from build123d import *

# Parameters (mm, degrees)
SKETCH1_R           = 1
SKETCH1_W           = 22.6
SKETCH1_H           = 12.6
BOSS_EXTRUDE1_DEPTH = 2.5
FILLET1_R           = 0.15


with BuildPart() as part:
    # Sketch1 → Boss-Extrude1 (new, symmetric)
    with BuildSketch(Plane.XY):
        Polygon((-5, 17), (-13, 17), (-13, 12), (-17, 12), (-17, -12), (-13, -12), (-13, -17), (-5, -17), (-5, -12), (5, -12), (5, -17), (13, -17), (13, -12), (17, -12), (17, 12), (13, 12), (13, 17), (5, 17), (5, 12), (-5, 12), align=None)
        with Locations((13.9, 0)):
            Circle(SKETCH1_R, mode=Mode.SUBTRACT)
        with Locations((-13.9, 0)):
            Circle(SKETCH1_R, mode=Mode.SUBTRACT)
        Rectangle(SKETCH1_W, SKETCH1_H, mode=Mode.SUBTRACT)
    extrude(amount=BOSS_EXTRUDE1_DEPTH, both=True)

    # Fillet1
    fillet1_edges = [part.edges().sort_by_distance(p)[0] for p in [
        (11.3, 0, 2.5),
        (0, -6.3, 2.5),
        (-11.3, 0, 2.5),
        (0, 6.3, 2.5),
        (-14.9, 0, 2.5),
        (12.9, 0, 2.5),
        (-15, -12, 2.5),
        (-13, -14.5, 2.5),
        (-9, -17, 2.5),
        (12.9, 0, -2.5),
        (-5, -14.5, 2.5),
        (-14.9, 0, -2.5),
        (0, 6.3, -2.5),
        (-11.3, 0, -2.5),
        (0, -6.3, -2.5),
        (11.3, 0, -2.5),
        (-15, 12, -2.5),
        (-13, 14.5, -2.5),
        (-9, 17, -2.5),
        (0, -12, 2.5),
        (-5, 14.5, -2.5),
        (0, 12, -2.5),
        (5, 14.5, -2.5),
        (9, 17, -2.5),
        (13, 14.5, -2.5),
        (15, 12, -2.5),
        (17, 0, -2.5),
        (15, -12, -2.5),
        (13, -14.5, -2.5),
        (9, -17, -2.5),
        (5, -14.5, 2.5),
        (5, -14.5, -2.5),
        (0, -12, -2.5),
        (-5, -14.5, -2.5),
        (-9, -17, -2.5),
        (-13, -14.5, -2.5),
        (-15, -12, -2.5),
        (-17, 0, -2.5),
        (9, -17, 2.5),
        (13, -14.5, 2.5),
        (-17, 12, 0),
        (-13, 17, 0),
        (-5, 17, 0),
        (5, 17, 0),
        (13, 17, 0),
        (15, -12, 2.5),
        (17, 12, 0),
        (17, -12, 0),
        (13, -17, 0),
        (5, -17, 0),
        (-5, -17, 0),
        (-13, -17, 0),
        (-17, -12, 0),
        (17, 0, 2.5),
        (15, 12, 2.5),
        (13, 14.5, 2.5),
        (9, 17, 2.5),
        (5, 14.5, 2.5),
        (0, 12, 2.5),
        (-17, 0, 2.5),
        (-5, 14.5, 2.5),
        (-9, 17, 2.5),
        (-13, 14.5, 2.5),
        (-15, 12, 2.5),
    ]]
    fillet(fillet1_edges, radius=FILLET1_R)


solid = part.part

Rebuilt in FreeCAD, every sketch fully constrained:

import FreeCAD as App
import Part
import Sketcher


def edges_at(feature, points):
    """Names of the edges that pass closest to the given points."""
    edges = feature.Shape.Edges
    near = lambda p: min(range(len(edges)), key=lambda i: edges[i].distToShape(Part.Vertex(*p))[0])
    return sorted({f"Edge{near(p) + 1}" for p in points})

doc = App.newDocument("Part")
params = doc.addObject("Spreadsheet::Sheet", "Params")
for row, (alias, value) in enumerate([
    ("sketch1_diameter", "2 mm"),
    ("sketch1_width", "8 mm"),
    ("sketch1_width2", "4 mm"),
    ("sketch1_width3", "10 mm"),
    ("sketch1_height", "5 mm"),
    ("pad1_length", "5 mm"),
    ("fillet_radius", "0.15 mm"),
], start=1):
    params.set(f"A{row}", alias)
    params.set(f"B{row}", "=" + value)
    params.setAlias(f"B{row}", alias)

body = doc.addObject("PartDesign::Body", "Body")

# Sketch on XY plane
sketch1 = body.newObject("Sketcher::SketchObject", "Sketch")
sketch1.AttachmentSupport = (doc.getObject("XY_Plane"), [""])
sketch1.MapMode = "FlatFace"
sketch1.addGeometry([
    Part.LineSegment(App.Vector(-5, 17, 0), App.Vector(-13, 17, 0)),  # 0
    Part.LineSegment(App.Vector(-13, 17, 0), App.Vector(-13, 12, 0)),  # 1
    Part.LineSegment(App.Vector(-13, 12, 0), App.Vector(-17, 12, 0)),  # 2
    Part.LineSegment(App.Vector(-17, 12, 0), App.Vector(-17, -12, 0)),  # 3
    Part.LineSegment(App.Vector(-17, -12, 0), App.Vector(-13, -12, 0)),  # 4
    Part.LineSegment(App.Vector(-13, -12, 0), App.Vector(-13, -17, 0)),  # 5
    Part.LineSegment(App.Vector(-13, -17, 0), App.Vector(-5, -17, 0)),  # 6
    Part.LineSegment(App.Vector(-5, -17, 0), App.Vector(-5, -12, 0)),  # 7
    Part.LineSegment(App.Vector(-5, -12, 0), App.Vector(5, -12, 0)),  # 8
    Part.LineSegment(App.Vector(5, -12, 0), App.Vector(5, -17, 0)),  # 9
    Part.LineSegment(App.Vector(5, -17, 0), App.Vector(13, -17, 0)),  # 10
    Part.LineSegment(App.Vector(13, -17, 0), App.Vector(13, -12, 0)),  # 11
    Part.LineSegment(App.Vector(13, -12, 0), App.Vector(17, -12, 0)),  # 12
    Part.LineSegment(App.Vector(17, -12, 0), App.Vector(17, 12, 0)),  # 13
    Part.LineSegment(App.Vector(17, 12, 0), App.Vector(13, 12, 0)),  # 14
    Part.LineSegment(App.Vector(13, 12, 0), App.Vector(13, 17, 0)),  # 15
    Part.LineSegment(App.Vector(13, 17, 0), App.Vector(5, 17, 0)),  # 16
    Part.LineSegment(App.Vector(5, 17, 0), App.Vector(5, 12, 0)),  # 17
    Part.LineSegment(App.Vector(5, 12, 0), App.Vector(-5, 12, 0)),  # 18
    Part.LineSegment(App.Vector(-5, 12, 0), App.Vector(-5, 17, 0)),  # 19
    Part.Circle(App.Vector(-13.9, 0, 0), App.Vector(0, 0, 1), 1),  # 20
    Part.LineSegment(App.Vector(11.3, -6.3, 0), App.Vector(-11.3, -6.3, 0)),  # 21
    Part.LineSegment(App.Vector(-11.3, -6.3, 0), App.Vector(-11.3, 6.3, 0)),  # 22
    Part.LineSegment(App.Vector(-11.3, 6.3, 0), App.Vector(11.3, 6.3, 0)),  # 23
    Part.LineSegment(App.Vector(11.3, 6.3, 0), App.Vector(11.3, -6.3, 0)),  # 24
    Part.Circle(App.Vector(13.9, 0, 0), App.Vector(0, 0, 1), 1),  # 25
], False)
sketch1.addConstraint([
    Sketcher.Constraint("Coincident", 0, 2, 1, 1),
    Sketcher.Constraint("Coincident", 1, 2, 2, 1),
    Sketcher.Constraint("Coincident", 2, 2, 3, 1),
    Sketcher.Constraint("Coincident", 3, 2, 4, 1),
    Sketcher.Constraint("Coincident", 4, 2, 5, 1),
    Sketcher.Constraint("Coincident", 5, 2, 6, 1),
    Sketcher.Constraint("Coincident", 6, 2, 7, 1),
    Sketcher.Constraint("Coincident", 7, 2, 8, 1),
    Sketcher.Constraint("Coincident", 8, 2, 9, 1),
    Sketcher.Constraint("Coincident", 9, 2, 10, 1),
    Sketcher.Constraint("Coincident", 10, 2, 11, 1),
    Sketcher.Constraint("Coincident", 11, 2, 12, 1),
    Sketcher.Constraint("Coincident", 12, 2, 13, 1),
    Sketcher.Constraint("Coincident", 13, 2, 14, 1),
    Sketcher.Constraint("Coincident", 14, 2, 15, 1),
    Sketcher.Constraint("Coincident", 15, 2, 16, 1),
    Sketcher.Constraint("Coincident", 16, 2, 17, 1),
    Sketcher.Constraint("Coincident", 17, 2, 18, 1),
    Sketcher.Constraint("Coincident", 18, 2, 19, 1),
    Sketcher.Constraint("Coincident", 19, 2, 0, 1),
    Sketcher.Constraint("Coincident", 21, 2, 22, 1),
    Sketcher.Constraint("Coincident", 22, 2, 23, 1),
    Sketcher.Constraint("Coincident", 23, 2, 24, 1),
    Sketcher.Constraint("Coincident", 24, 2, 21, 1),
    Sketcher.Constraint("Horizontal", 0),
    Sketcher.Constraint("Vertical", 1),
    Sketcher.Constraint("Horizontal", 2),
    Sketcher.Constraint("Vertical", 3),
    Sketcher.Constraint("Horizontal", 4),
    Sketcher.Constraint("Vertical", 5),
    Sketcher.Constraint("Horizontal", 6),
    Sketcher.Constraint("Vertical", 7),
    Sketcher.Constraint("Horizontal", 8),
    Sketcher.Constraint("Vertical", 9),
    Sketcher.Constraint("Horizontal", 10),
    Sketcher.Constraint("Vertical", 11),
    Sketcher.Constraint("Horizontal", 12),
    Sketcher.Constraint("Vertical", 13),
    Sketcher.Constraint("Horizontal", 14),
    Sketcher.Constraint("Vertical", 15),
    Sketcher.Constraint("Horizontal", 16),
    Sketcher.Constraint("Vertical", 17),
    Sketcher.Constraint("Horizontal", 18),
    Sketcher.Constraint("Vertical", 19),
    Sketcher.Constraint("Horizontal", 21),
    Sketcher.Constraint("Vertical", 22),
    Sketcher.Constraint("Horizontal", 23),
    Sketcher.Constraint("Vertical", 24),
    Sketcher.Constraint("Equal", 20, 25),
    Sketcher.Constraint("Symmetric", 20, 3, 25, 3, -1, 1),
    Sketcher.Constraint("Symmetric", 0, 2, 10, 2, -1, 1),
    Sketcher.Constraint("Symmetric", 2, 2, 12, 2, -1, 1),
    Sketcher.Constraint("Symmetric", 4, 2, 14, 2, -1, 1),
    Sketcher.Constraint("Symmetric", 6, 2, 16, 2, -1, 1),
    Sketcher.Constraint("Symmetric", 8, 2, 18, 2, -1, 1),
    Sketcher.Constraint("Symmetric", 21, 2, 23, 2, -1, 1),
    Sketcher.Constraint("Symmetric", 6, 2, 9, 2, -2),
    Sketcher.Constraint("Symmetric", 4, 2, 11, 2, -2),
    Sketcher.Constraint("PointOnObject", 20, 3, -1),
    Sketcher.Constraint("Horizontal", 4, 2, 7, 2),
    Sketcher.Constraint("Diameter", 20, 2.0),
    Sketcher.Constraint("DistanceX", 0, 2, 0, 1, 8.0),
    Sketcher.Constraint("DistanceX", 2, 2, 2, 1, 4.0),
    Sketcher.Constraint("DistanceX", 8, 1, 8, 2, 10.0),
    Sketcher.Constraint("DistanceY", 1, 2, 1, 1, 5.0),
    Sketcher.Constraint("DistanceY", 3, 2, 3, 1, 24.0),
    Sketcher.Constraint("DistanceX", 21, 2, 21, 1, 22.6),
    Sketcher.Constraint("DistanceY", 22, 1, 22, 2, 12.6),
    Sketcher.Constraint("DistanceX", 20, 3, -1, 1, 13.9),
])
sketch1.setExpression("Constraints[60]", "Params.sketch1_diameter")
sketch1.setExpression("Constraints[61]", "Params.sketch1_width")
sketch1.setExpression("Constraints[62]", "Params.sketch1_width2")
sketch1.setExpression("Constraints[63]", "Params.sketch1_width3")
sketch1.setExpression("Constraints[64]", "Params.sketch1_height")
pad1 = body.newObject("PartDesign::Pad", "Pad")
pad1.Profile = sketch1
pad1.setExpression("Length", "Params.pad1_length")
pad1.Midplane = True
doc.recompute()

fillet = body.newObject("PartDesign::Fillet", "Fillet")
fillet.Base = (pad1, edges_at(pad1, [
    (11.3, 0, 2.5),
    (0, -6.3, 2.5),
    (-11.3, 0, 2.5),
    (0, 6.3, 2.5),
    (-14.9, 0, 2.5),
    (12.9, 0, 2.5),
    (-15, -12, 2.5),
    (-13, -14.5, 2.5),
    (-9, -17, 2.5),
    (12.9, 0, -2.5),
    (-5, -14.5, 2.5),
    (-14.9, 0, -2.5),
    (0, 6.3, -2.5),
    (-11.3, 0, -2.5),
    (0, -6.3, -2.5),
    (11.3, 0, -2.5),
    (-15, 12, -2.5),
    (-13, 14.5, -2.5),
    (-9, 17, -2.5),
    (0, -12, 2.5),
    (-5, 14.5, -2.5),
    (0, 12, -2.5),
    (5, 14.5, -2.5),
    (9, 17, -2.5),
    (13, 14.5, -2.5),
    (15, 12, -2.5),
    (17, 0, -2.5),
    (15, -12, -2.5),
    (13, -14.5, -2.5),
    (9, -17, -2.5),
    (5, -14.5, 2.5),
    (5, -14.5, -2.5),
    (0, -12, -2.5),
    (-5, -14.5, -2.5),
    (-9, -17, -2.5),
    (-13, -14.5, -2.5),
    (-15, -12, -2.5),
    (-17, 0, -2.5),
    (9, -17, 2.5),
    (13, -14.5, 2.5),
    (-17, 12, 0),
    (-13, 17, 0),
    (-5, 17, 0),
    (5, 17, 0),
    (13, 17, 0),
    (15, -12, 2.5),
    (17, 12, 0),
    (17, -12, 0),
    (13, -17, 0),
    (5, -17, 0),
    (-5, -17, 0),
    (-13, -17, 0),
    (-17, -12, 0),
    (17, 0, 2.5),
    (15, 12, 2.5),
    (13, 14.5, 2.5),
    (9, 17, 2.5),
    (5, 14.5, 2.5),
    (0, 12, 2.5),
    (-17, 0, 2.5),
    (-5, 14.5, 2.5),
    (-9, 17, 2.5),
    (-13, 14.5, 2.5),
    (-15, 12, 2.5),
]))
fillet.setExpression("Radius", "Params.fillet_radius")

doc.recompute()
